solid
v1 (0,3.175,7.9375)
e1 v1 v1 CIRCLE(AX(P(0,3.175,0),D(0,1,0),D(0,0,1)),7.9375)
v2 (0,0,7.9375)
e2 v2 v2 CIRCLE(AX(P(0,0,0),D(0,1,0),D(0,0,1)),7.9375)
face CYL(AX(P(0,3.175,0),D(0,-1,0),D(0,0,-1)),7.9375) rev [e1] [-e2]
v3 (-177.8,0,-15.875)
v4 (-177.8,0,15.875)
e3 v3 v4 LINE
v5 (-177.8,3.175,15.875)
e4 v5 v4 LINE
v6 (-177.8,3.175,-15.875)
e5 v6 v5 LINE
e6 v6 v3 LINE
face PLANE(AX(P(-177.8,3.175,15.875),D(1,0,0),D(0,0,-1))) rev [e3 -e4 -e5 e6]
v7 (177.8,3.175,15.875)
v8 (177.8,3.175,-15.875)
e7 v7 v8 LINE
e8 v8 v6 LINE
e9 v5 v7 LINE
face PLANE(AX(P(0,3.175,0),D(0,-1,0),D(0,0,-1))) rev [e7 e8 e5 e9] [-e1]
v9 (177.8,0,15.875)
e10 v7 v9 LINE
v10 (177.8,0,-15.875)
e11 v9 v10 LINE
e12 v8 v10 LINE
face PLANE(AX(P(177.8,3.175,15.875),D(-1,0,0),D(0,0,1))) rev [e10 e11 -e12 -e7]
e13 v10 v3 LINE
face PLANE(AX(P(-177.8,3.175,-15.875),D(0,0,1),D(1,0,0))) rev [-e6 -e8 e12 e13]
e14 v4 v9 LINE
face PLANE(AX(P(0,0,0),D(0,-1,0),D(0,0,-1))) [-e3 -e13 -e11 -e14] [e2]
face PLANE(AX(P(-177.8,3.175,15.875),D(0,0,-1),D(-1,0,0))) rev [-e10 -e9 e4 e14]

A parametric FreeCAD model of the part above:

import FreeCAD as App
import Part
import Sketcher
Q = App.Units.Quantity

doc = App.newDocument("Part")
body = doc.addObject("PartDesign::Body", "Body")

# Sketch on XZ plane
sketch1 = body.newObject("Sketcher::SketchObject", "Sketch")
sketch1.AttachmentSupport = (doc.getObject("XZ_Plane"), [""])
sketch1.MapMode = "FlatFace"
sketch1.addGeometry(Part.LineSegment(App.Vector(-178, -16, 0), App.Vector(-178, 16, 0)), False)
sketch1.addGeometry(Part.LineSegment(App.Vector(-178, 16, 0), App.Vector(178, 16, 0)), False)
sketch1.addGeometry(Part.LineSegment(App.Vector(178, 16, 0), App.Vector(178, -16, 0)), False)
sketch1.addGeometry(Part.LineSegment(App.Vector(178, -16, 0), App.Vector(-178, -16, 0)), False)
sketch1.addGeometry(Part.Circle(App.Vector(0, 0, 0), App.Vector(0, 0, 1), 8), False)
sketch1.addConstraint(Sketcher.Constraint("Coincident", 0, 2, 1, 1))
sketch1.addConstraint(Sketcher.Constraint("Coincident", 1, 2, 2, 1))
sketch1.addConstraint(Sketcher.Constraint("Coincident", 2, 2, 3, 1))
sketch1.addConstraint(Sketcher.Constraint("Coincident", 3, 2, 0, 1))
sketch1.addConstraint(Sketcher.Constraint("Vertical", 0))
sketch1.addConstraint(Sketcher.Constraint("Horizontal", 1))
sketch1.addConstraint(Sketcher.Constraint("Vertical", 2))
sketch1.addConstraint(Sketcher.Constraint("Horizontal", 3))
sketch1.addConstraint(Sketcher.Constraint("Coincident", 4, 3, -1, 1))
sketch1.addConstraint(Sketcher.Constraint("Symmetric", 0, 2, 2, 2, -1, 1))
sketch1.addConstraint(Sketcher.Constraint("DistanceX", 1, 1, 1, 2, Q("14 in")))
sketch1.addConstraint(Sketcher.Constraint("Diameter", 4, Q("0.625 in")))
sketch1.addConstraint(Sketcher.Constraint("DistanceY", 0, 1, 0, 2, Q("1.25 in")))
pad1 = body.newObject("PartDesign::Pad", "Pad")
pad1.Profile = sketch1
pad1.Length = Q("0.125 in")
pad1.Reversed = True

doc.recompute()
